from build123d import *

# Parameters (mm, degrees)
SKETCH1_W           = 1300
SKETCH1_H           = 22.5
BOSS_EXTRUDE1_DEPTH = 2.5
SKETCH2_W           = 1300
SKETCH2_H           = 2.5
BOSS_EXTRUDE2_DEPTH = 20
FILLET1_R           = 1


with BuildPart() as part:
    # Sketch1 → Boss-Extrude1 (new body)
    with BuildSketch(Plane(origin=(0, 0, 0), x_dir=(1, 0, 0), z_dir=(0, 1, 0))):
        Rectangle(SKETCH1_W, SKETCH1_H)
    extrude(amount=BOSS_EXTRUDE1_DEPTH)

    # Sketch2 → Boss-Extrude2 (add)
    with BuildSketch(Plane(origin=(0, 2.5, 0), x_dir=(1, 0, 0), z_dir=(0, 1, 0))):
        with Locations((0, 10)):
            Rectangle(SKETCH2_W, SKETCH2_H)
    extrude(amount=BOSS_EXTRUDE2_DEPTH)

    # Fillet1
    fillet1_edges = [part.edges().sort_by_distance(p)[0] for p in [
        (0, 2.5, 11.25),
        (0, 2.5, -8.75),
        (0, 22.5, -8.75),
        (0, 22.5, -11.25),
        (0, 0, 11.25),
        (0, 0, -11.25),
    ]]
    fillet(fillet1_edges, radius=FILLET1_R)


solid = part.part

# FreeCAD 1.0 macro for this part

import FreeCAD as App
import Part
import Sketcher


def edges_at(feature, points):
    """Names of the edges that pass closest to the given points."""
    edges = feature.Shape.Edges
    near = lambda p: min(range(len(edges)), key=lambda i: edges[i].distToShape(Part.Vertex(*p))[0])
    return sorted({f"Edge{near(p) + 1}" for p in points})


def add_polygon(sketch, points):
    """Adds a closed chain of lines whose ends are joined by coincident constraints."""
    first, n = sketch.GeometryCount, len(points)
    for a, b in zip(points, points[1:] + points[:1]):
        sketch.addGeometry(Part.LineSegment(App.Vector(*a, 0), App.Vector(*b, 0)), False)
    for i in range(n):
        sketch.addConstraint(Sketcher.Constraint("Coincident", first + i, 2, first + (i + 1) % n, 1))

doc = App.newDocument("Part")
params = doc.addObject("Spreadsheet::Sheet", "Params")
for row, (alias, value) in enumerate([
    ("sketch1_width", "1300 mm"),
    ("sketch1_height", "22.5 mm"),
    ("pad1_length", "2.5 mm"),
    ("sketch2_width", "1300 mm"),
    ("sketch2_height", "2.5 mm"),
    ("pad2_length", "20 mm"),
    ("fillet_radius", "1 mm"),
], start=1):
    params.set(f"A{row}", alias)
    params.set(f"B{row}", "=" + value)
    params.setAlias(f"B{row}", alias)

body = doc.addObject("PartDesign::Body", "Body")

# Sketch on XZ plane
sketch1 = doc.addObject("Sketcher::SketchObject", "Sketch")
body.addObject(sketch1)
sketch1.AttachmentSupport = (doc.XZ_Plane, [""])
sketch1.MapMode = "FlatFace"
add_polygon(sketch1, [(-650, -11), (-650, 11), (650, 11), (650, -11)])  # lines 0-3
sketch1.addConstraint(Sketcher.Constraint("Vertical", 0))
sketch1.addConstraint(Sketcher.Constraint("Horizontal", 1))
sketch1.addConstraint(Sketcher.Constraint("Vertical", 2))
sketch1.addConstraint(Sketcher.Constraint("Horizontal", 3))
sketch1.addConstraint(Sketcher.Constraint("Symmetric", 0, 2, 2, 2, -1, 1))
sketch1.addConstraint(Sketcher.Constraint("DistanceX", 1, 1, 1, 2, 1300.0))
sketch1.addConstraint(Sketcher.Constraint("DistanceY", 0, 1, 0, 2, 22.5))
sketch1.setExpression("Constraints[9]", "Params.sketch1_width")
sketch1.setExpression("Constraints[10]", "Params.sketch1_height")
pad1 = doc.addObject("PartDesign::Pad", "Pad")
body.addObject(pad1)
pad1.Profile = sketch1
pad1.setExpression("Length", "Params.pad1_length")
pad1.Reversed = True

# Sketch on XZ plane
sketch2 = doc.addObject("Sketcher::SketchObject", "Sketch001")
body.addObject(sketch2)
sketch2.AttachmentSupport = (doc.XZ_Plane, [""])
sketch2.MapMode = "FlatFace"
sketch2.AttachmentOffset = App.Placement(App.Vector(0, 0, -2.5), App.Rotation())
add_polygon(sketch2, [(-650, -11.2), (-650, -8.8), (650, -8.8), (650, -11.2)])  # lines 0-3
sketch2.addConstraint(Sketcher.Constraint("Vertical", 0))
sketch2.addConstraint(Sketcher.Constraint("Horizontal", 1))
sketch2.addConstraint(Sketcher.Constraint("Vertical", 2))
sketch2.addConstraint(Sketcher.Constraint("Horizontal", 3))
sketch2.addConstraint(Sketcher.Constraint("DistanceX", 1, 1, 1, 2, 1300.0))
sketch2.addConstraint(Sketcher.Constraint("DistanceY", 0, 1, 0, 2, 2.5))
sketch2.addConstraint(Sketcher.Constraint("DistanceX", 0, 2, -1, 1, 650.0))
sketch2.addConstraint(Sketcher.Constraint("DistanceY", 0, 2, -1, 1, 8.75))
sketch2.setExpression("Constraints[8]", "Params.sketch2_width")
sketch2.setExpression("Constraints[9]", "Params.sketch2_height")
pad2 = doc.addObject("PartDesign::Pad", "Pad001")
body.addObject(pad2)
pad2.Profile = sketch2
pad2.setExpression("Length", "Params.pad2_length")
pad2.Reversed = True
doc.recompute()

fillet = doc.addObject("PartDesign::Fillet", "Fillet")
body.addObject(fillet)
fillet.Base = (pad2, edges_at(pad2, [
    (0, 2.5, 11.25),
    (0, 2.5, -8.75),
    (0, 22.5, -8.75),
    (0, 22.5, -11.25),
    (0, 0, 11.25),
    (0, 0, -11.25),
]))
fillet.setExpression("Radius", "Params.fillet_radius")

doc.recompute()
